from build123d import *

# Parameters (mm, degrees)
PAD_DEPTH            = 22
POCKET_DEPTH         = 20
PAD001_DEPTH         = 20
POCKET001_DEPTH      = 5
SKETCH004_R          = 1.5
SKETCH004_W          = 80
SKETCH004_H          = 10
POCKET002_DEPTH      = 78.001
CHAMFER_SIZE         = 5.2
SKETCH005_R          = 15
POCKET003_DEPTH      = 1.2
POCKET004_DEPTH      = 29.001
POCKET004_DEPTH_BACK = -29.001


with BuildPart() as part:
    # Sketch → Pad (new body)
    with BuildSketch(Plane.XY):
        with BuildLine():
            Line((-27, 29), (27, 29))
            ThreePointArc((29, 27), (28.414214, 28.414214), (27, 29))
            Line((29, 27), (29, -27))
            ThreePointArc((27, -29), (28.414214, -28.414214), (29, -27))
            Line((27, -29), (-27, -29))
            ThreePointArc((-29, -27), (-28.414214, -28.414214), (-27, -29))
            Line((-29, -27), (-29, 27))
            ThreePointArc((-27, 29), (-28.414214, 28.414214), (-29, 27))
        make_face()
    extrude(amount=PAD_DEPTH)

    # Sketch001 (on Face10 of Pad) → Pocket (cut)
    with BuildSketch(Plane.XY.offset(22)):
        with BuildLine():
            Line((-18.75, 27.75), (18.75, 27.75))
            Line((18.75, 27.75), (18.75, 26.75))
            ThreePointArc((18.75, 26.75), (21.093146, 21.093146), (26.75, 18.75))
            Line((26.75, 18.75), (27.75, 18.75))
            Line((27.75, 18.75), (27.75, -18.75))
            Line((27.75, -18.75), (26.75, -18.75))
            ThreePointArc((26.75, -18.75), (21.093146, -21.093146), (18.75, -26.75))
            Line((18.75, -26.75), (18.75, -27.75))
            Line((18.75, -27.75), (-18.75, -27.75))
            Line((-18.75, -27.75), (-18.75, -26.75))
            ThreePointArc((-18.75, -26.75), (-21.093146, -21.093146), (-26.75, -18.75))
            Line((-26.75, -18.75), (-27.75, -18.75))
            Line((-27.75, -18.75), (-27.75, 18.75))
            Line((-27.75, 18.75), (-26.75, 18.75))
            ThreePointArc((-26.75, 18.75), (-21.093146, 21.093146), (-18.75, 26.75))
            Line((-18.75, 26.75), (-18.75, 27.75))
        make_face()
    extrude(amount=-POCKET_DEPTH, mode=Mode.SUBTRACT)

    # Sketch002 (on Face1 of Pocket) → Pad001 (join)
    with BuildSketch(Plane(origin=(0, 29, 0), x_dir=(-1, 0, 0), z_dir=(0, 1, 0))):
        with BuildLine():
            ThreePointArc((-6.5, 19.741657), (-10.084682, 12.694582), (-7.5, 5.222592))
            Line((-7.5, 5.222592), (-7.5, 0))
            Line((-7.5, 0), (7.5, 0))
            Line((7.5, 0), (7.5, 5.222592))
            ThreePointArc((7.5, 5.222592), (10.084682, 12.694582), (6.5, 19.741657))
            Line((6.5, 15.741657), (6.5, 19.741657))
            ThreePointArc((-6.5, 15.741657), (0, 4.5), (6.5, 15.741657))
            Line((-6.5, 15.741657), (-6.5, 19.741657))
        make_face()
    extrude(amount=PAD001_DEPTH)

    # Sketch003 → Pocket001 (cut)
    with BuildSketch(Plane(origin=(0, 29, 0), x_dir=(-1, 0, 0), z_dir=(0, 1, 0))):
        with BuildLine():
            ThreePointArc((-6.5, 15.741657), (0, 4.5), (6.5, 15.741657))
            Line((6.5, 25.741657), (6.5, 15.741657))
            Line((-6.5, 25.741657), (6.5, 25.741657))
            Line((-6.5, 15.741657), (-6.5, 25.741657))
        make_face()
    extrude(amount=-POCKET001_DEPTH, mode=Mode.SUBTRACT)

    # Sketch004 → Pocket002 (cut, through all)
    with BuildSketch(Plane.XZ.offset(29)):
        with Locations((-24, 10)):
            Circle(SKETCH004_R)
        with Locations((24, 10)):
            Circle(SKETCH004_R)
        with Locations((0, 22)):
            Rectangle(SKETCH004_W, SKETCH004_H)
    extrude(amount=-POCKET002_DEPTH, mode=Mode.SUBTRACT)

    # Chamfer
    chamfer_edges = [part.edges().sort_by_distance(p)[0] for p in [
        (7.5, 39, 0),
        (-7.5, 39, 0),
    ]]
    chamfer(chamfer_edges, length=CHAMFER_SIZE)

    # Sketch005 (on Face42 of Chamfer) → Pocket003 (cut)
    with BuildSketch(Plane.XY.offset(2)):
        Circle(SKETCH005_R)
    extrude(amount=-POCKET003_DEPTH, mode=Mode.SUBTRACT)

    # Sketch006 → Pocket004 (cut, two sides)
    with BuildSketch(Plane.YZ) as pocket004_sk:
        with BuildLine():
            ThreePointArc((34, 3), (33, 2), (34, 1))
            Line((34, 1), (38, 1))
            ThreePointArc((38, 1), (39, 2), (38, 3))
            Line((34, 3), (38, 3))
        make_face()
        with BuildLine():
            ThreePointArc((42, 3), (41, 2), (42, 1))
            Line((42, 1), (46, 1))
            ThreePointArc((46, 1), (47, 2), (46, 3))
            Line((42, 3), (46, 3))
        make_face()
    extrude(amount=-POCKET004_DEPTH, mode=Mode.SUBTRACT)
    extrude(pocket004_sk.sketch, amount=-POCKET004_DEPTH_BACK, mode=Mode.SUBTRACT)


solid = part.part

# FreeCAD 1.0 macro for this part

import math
import FreeCAD as App
import Part
import Sketcher
from FreeCAD import Vector


def edges_at(feature, points):
    """Names of the edges that pass closest to the given points."""
    edges = feature.Shape.Edges
    near = lambda p: min(range(len(edges)), key=lambda i: edges[i].distToShape(Part.Vertex(*p))[0])
    return sorted({f"Edge{near(p) + 1}" for p in points})


def add_polygon(sketch, points):
    """Adds a closed chain of lines whose ends are joined by coincident constraints."""
    first, n = sketch.GeometryCount, len(points)
    for a, b in zip(points, points[1:] + points[:1]):
        sketch.addGeometry(Part.LineSegment(App.Vector(*a, 0), App.Vector(*b, 0)), False)
    for i in range(n):
        sketch.addConstraint(Sketcher.Constraint("Coincident", first + i, 2, first + (i + 1) % n, 1))

doc = App.newDocument("Part")
body = doc.addObject("PartDesign::Body", "Body")

# Sketch on XY plane
sketch1 = doc.addObject("Sketcher::SketchObject", "Sketch")
body.addObject(sketch1)
sketch1.AttachmentSupport = (doc.XY_Plane, [""])
sketch1.MapMode = "FlatFace"
sketch1.addGeometry(Part.LineSegment(Vector(27, 29, 0), Vector(-27, 29, 0)), False)
sketch1.addGeometry(Part.ArcOfCircle(Part.Circle(Vector(-27, 27, 0), Vector(0, 0, 1), 2), math.radians(90), math.radians(180)), False)
sketch1.addGeometry(Part.LineSegment(Vector(-29, 27, 0), Vector(-29, -27, 0)), False)
sketch1.addGeometry(Part.ArcOfCircle(Part.Circle(Vector(-27, -27, 0), Vector(0, 0, 1), 2), math.radians(180), math.radians(270)), False)
sketch1.addGeometry(Part.LineSegment(Vector(-27, -29, 0), Vector(27, -29, 0)), False)
sketch1.addGeometry(Part.ArcOfCircle(Part.Circle(Vector(27, -27, 0), Vector(0, 0, 1), 2), math.radians(-90), math.radians(0)), False)
sketch1.addGeometry(Part.LineSegment(Vector(29, -27, 0), Vector(29, 27, 0)), False)
sketch1.addGeometry(Part.ArcOfCircle(Part.Circle(Vector(27, 27, 0), Vector(0, 0, 1), 2), math.radians(0), math.radians(90)), False)
sketch1.addConstraint(Sketcher.Constraint("Tangent", 0, 2, 1, 1))
sketch1.addConstraint(Sketcher.Constraint("Tangent", 1, 2, 2, 1))
sketch1.addConstraint(Sketcher.Constraint("Tangent", 2, 2, 3, 1))
sketch1.addConstraint(Sketcher.Constraint("Tangent", 3, 2, 4, 1))
sketch1.addConstraint(Sketcher.Constraint("Tangent", 4, 2, 5, 1))
sketch1.addConstraint(Sketcher.Constraint("Tangent", 5, 2, 6, 1))
sketch1.addConstraint(Sketcher.Constraint("Tangent", 6, 2, 7, 1))
sketch1.addConstraint(Sketcher.Constraint("Tangent", 7, 2, 0, 1))
sketch1.addConstraint(Sketcher.Constraint("Horizontal", 0))
sketch1.addConstraint(Sketcher.Constraint("Vertical", 2))
sketch1.addConstraint(Sketcher.Constraint("Horizontal", 4))
sketch1.addConstraint(Sketcher.Constraint("Vertical", 6))
sketch1.addConstraint(Sketcher.Constraint("Equal", 1, 3))
sketch1.addConstraint(Sketcher.Constraint("Equal", 3, 5))
sketch1.addConstraint(Sketcher.Constraint("Equal", 5, 7))
sketch1.addConstraint(Sketcher.Constraint("Symmetric", 1, 3, 5, 3, -1, 1))
sketch1.addConstraint(Sketcher.Constraint("Equal", 4, 2))
sketch1.addConstraint(Sketcher.Constraint("Radius", 1, 1.999999))
sketch1.addConstraint(Sketcher.Constraint("DistanceX", 0, 2, 0, 1, 54.0))
pad1 = doc.addObject("PartDesign::Pad", "Pad")
body.addObject(pad1)
pad1.Profile = sketch1
pad1.Length = 22

# Sketch on XY plane
sketch2 = doc.addObject("Sketcher::SketchObject", "Sketch001")
body.addObject(sketch2)
sketch2.AttachmentSupport = (doc.XY_Plane, [""])
sketch2.MapMode = "FlatFace"
sketch2.AttachmentOffset = App.Placement(Vector(0, 0, 22), App.Rotation())
sketch2.addGeometry(Part.LineSegment(Vector(18.8, 27.8, 0), Vector(-18.8, 27.8, 0)), False)
sketch2.addGeometry(Part.LineSegment(Vector(-18.8, 27.8, 0), Vector(-18.8, 26.8, 0)), False)
sketch2.addGeometry(Part.ArcOfCircle(Part.Circle(Vector(-26.8, 26.8, 0), Vector(0, 0, 1), 8), math.radians(-90), math.radians(0)), False)
sketch2.addGeometry(Part.LineSegment(Vector(-26.8, 18.8, 0), Vector(-27.8, 18.8, 0)), False)
sketch2.addGeometry(Part.LineSegment(Vector(-27.8, 18.8, 0), Vector(-27.8, -18.8, 0)), False)
sketch2.addGeometry(Part.LineSegment(Vector(-27.8, -18.8, 0), Vector(-26.8, -18.8, 0)), False)
sketch2.addGeometry(Part.ArcOfCircle(Part.Circle(Vector(-26.8, -26.8, 0), Vector(0, 0, 1), 8), math.radians(0), math.radians(90)), False)
sketch2.addGeometry(Part.LineSegment(Vector(-18.8, -26.8, 0), Vector(-18.8, -27.8, 0)), False)
sketch2.addGeometry(Part.LineSegment(Vector(-18.8, -27.8, 0), Vector(18.8, -27.8, 0)), False)
sketch2.addGeometry(Part.LineSegment(Vector(18.8, -27.8, 0), Vector(18.8, -26.8, 0)), False)
sketch2.addGeometry(Part.ArcOfCircle(Part.Circle(Vector(26.8, -26.8, 0), Vector(0, 0, 1), 8), math.radians(90), math.radians(180)), False)
sketch2.addGeometry(Part.LineSegment(Vector(26.8, -18.8, 0), Vector(27.8, -18.8, 0)), False)
sketch2.addGeometry(Part.LineSegment(Vector(27.8, -18.8, 0), Vector(27.8, 18.8, 0)), False)
sketch2.addGeometry(Part.LineSegment(Vector(27.8, 18.8, 0), Vector(26.8, 18.8, 0)), False)
sketch2.addGeometry(Part.ArcOfCircle(Part.Circle(Vector(26.8, 26.8, 0), Vector(0, 0, 1), 8), math.radians(-180), math.radians(-90)), False)
sketch2.addGeometry(Part.LineSegment(Vector(18.8, 26.8, 0), Vector(18.8, 27.8, 0)), False)
sketch2.addConstraint(Sketcher.Constraint("Coincident", 0, 2, 1, 1))
sketch2.addConstraint(Sketcher.Constraint("Tangent", 1, 2, 2, 2))
sketch2.addConstraint(Sketcher.Constraint("Tangent", 2, 1, 3, 1))
sketch2.addConstraint(Sketcher.Constraint("Coincident", 3, 2, 4, 1))
sketch2.addConstraint(Sketcher.Constraint("Coincident", 4, 2, 5, 1))
sketch2.addConstraint(Sketcher.Constraint("Tangent", 5, 2, 6, 2))
sketch2.addConstraint(Sketcher.Constraint("Tangent", 6, 1, 7, 1))
sketch2.addConstraint(Sketcher.Constraint("Coincident", 7, 2, 8, 1))
sketch2.addConstraint(Sketcher.Constraint("Coincident", 8, 2, 9, 1))
sketch2.addConstraint(Sketcher.Constraint("Tangent", 9, 2, 10, 2))
sketch2.addConstraint(Sketcher.Constraint("Tangent", 10, 1, 11, 1))
sketch2.addConstraint(Sketcher.Constraint("Coincident", 11, 2, 12, 1))
sketch2.addConstraint(Sketcher.Constraint("Coincident", 12, 2, 13, 1))
sketch2.addConstraint(Sketcher.Constraint("Tangent", 13, 2, 14, 2))
sketch2.addConstraint(Sketcher.Constraint("Tangent", 14, 1, 15, 1))
sketch2.addConstraint(Sketcher.Constraint("Coincident", 15, 2, 0, 1))
sketch2.addConstraint(Sketcher.Constraint("Horizontal", 0))
sketch2.addConstraint(Sketcher.Constraint("Vertical", 1))
sketch2.addConstraint(Sketcher.Constraint("Horizontal", 3))
sketch2.addConstraint(Sketcher.Constraint("Vertical", 4))
sketch2.addConstraint(Sketcher.Constraint("Horizontal", 5))
sketch2.addConstraint(Sketcher.Constraint("Vertical", 7))
sketch2.addConstraint(Sketcher.Constraint("Horizontal", 8))
sketch2.addConstraint(Sketcher.Constraint("Vertical", 9))
sketch2.addConstraint(Sketcher.Constraint("Horizontal", 11))
sketch2.addConstraint(Sketcher.Constraint("Vertical", 12))
sketch2.addConstraint(Sketcher.Constraint("Horizontal", 13))
sketch2.addConstraint(Sketcher.Constraint("Vertical", 15))
sketch2.addConstraint(Sketcher.Constraint("Equal", 2, 6))
sketch2.addConstraint(Sketcher.Constraint("Equal", 6, 10))
sketch2.addConstraint(Sketcher.Constraint("Equal", 10, 14))
sketch2.addConstraint(Sketcher.Constraint("Symmetric", 2, 3, 10, 3, -1, 1))
sketch2.addConstraint(Sketcher.Constraint("Symmetric", 6, 3, 14, 3, -1, 1))
sketch2.addConstraint(Sketcher.Constraint("Symmetric", 6, 3, 10, 3, -2))
sketch2.addConstraint(Sketcher.Constraint("Equal", 5, 11))
sketch2.addConstraint(Sketcher.Constraint("Equal", 13, 1))
sketch2.addConstraint(Sketcher.Constraint("Equal", 8, 4))
sketch2.addConstraint(Sketcher.Constraint("Equal", 1, 7))
sketch2.addConstraint(Sketcher.Constraint("Radius", 2, 8.000001))
sketch2.addConstraint(Sketcher.Constraint("DistanceX", 3, 2, 3, 1, 1.0))
sketch2.addConstraint(Sketcher.Constraint("DistanceX", 0, 2, 0, 1, 37.5))
pocket1 = doc.addObject("PartDesign::Pocket", "Pocket")
body.addObject(pocket1)
pocket1.Profile = sketch2
pocket1.Length = 20

# Sketch on XZ plane
sketch3 = doc.addObject("Sketcher::SketchObject", "Sketch002")
body.addObject(sketch3)
sketch3.AttachmentSupport = (doc.XZ_Plane, [""])
sketch3.MapMode = "FlatFace"
sketch3.AttachmentOffset = App.Placement(Vector(0, 0, -29), App.Rotation())
sketch3.addGeometry(Part.ArcOfCircle(Part.Circle(Vector(0, 12, 0), Vector(0, 0, 1), 10.1), math.radians(-42), math.radians(50)), False)
sketch3.addGeometry(Part.LineSegment(Vector(7.5, 5.2, 0), Vector(7.5, 0, 0)), False)
sketch3.addGeometry(Part.LineSegment(Vector(7.5, 0, 0), Vector(-7.5, 0, 0)), False)
sketch3.addGeometry(Part.LineSegment(Vector(-7.5, 0, 0), Vector(-7.5, 5.2, 0)), False)
sketch3.addGeometry(Part.ArcOfCircle(Part.Circle(Vector(0, 12, 0), Vector(0, 0, 1), 10.1), math.radians(130), math.radians(222)), False)
sketch3.addGeometry(Part.LineSegment(Vector(-6.5, 19.7, 0), Vector(-6.5, 15.7, 0)), False)
sketch3.addGeometry(Part.ArcOfCircle(Part.Circle(Vector(0, 12, 0), Vector(0, 0, 1), 7.5), math.radians(150), math.radians(390)), False)
sketch3.addGeometry(Part.LineSegment(Vector(6.5, 15.7, 0), Vector(6.5, 19.7, 0)), False)
sketch3.addConstraint(Sketcher.Constraint("Coincident", 0, 1, 1, 1))
sketch3.addConstraint(Sketcher.Constraint("Coincident", 1, 2, 2, 1))
sketch3.addConstraint(Sketcher.Constraint("Coincident", 2, 2, 3, 1))
sketch3.addConstraint(Sketcher.Constraint("Coincident", 3, 2, 4, 2))
sketch3.addConstraint(Sketcher.Constraint("Coincident", 4, 1, 5, 1))
sketch3.addConstraint(Sketcher.Constraint("Coincident", 5, 2, 6, 1))
sketch3.addConstraint(Sketcher.Constraint("Coincident", 6, 2, 7, 1))
sketch3.addConstraint(Sketcher.Constraint("Coincident", 7, 2, 0, 2))
sketch3.addConstraint(Sketcher.Constraint("Vertical", 1))
sketch3.addConstraint(Sketcher.Constraint("Horizontal", 2))
sketch3.addConstraint(Sketcher.Constraint("Vertical", 3))
sketch3.addConstraint(Sketcher.Constraint("Vertical", 5))
sketch3.addConstraint(Sketcher.Constraint("Vertical", 7))
sketch3.addConstraint(Sketcher.Constraint("Coincident", 4, 3, 0, 3))
sketch3.addConstraint(Sketcher.Constraint("Coincident", 6, 3, 0, 3))
sketch3.addConstraint(Sketcher.Constraint("Equal", 0, 4))
sketch3.addConstraint(Sketcher.Constraint("Symmetric", 1, 2, 2, 2, -1, 1))
sketch3.addConstraint(Sketcher.Constraint("Symmetric", 5, 2, 6, 2, -2))
sketch3.addConstraint(Sketcher.Constraint("Radius", 6, 7.5))
sketch3.addConstraint(Sketcher.Constraint("DistanceX", 2, 2, 2, 1, 15.0))
sketch3.addConstraint(Sketcher.Constraint("DistanceY", 5, 2, 5, 1, 4.0))
sketch3.addConstraint(Sketcher.Constraint("DistanceY", -1, 1, 0, 3, 12.0))
sketch3.addConstraint(Sketcher.Constraint("DistanceX", 3, 2, 4, 1, 1.0))
pad2 = doc.addObject("PartDesign::Pad", "Pad001")
body.addObject(pad2)
pad2.Profile = sketch3
pad2.Length = 20
pad2.Reversed = True

# Sketch on XZ plane
sketch4 = doc.addObject("Sketcher::SketchObject", "Sketch003")
body.addObject(sketch4)
sketch4.AttachmentSupport = (doc.XZ_Plane, [""])
sketch4.MapMode = "FlatFace"
sketch4.AttachmentOffset = App.Placement(Vector(0, 0, -29), App.Rotation())
sketch4.addGeometry(Part.ArcOfCircle(Part.Circle(Vector(0, 12, 0), Vector(0, 0, 1), 7), math.radians(150), math.radians(390)), False)
sketch4.addGeometry(Part.LineSegment(Vector(-6, 16, 0), Vector(-6, 26, 0)), False)
sketch4.addGeometry(Part.LineSegment(Vector(-6, 26, 0), Vector(6, 26, 0)), False)
sketch4.addGeometry(Part.LineSegment(Vector(6, 26, 0), Vector(6, 16, 0)), False)
sketch4.addConstraint(Sketcher.Constraint("Coincident", 0, 1, 1, 1))
sketch4.addConstraint(Sketcher.Constraint("Coincident", 1, 2, 2, 1))
sketch4.addConstraint(Sketcher.Constraint("Coincident", 2, 2, 3, 1))
sketch4.addConstraint(Sketcher.Constraint("Coincident", 3, 2, 0, 2))
sketch4.addConstraint(Sketcher.Constraint("Vertical", 1))
sketch4.addConstraint(Sketcher.Constraint("Horizontal", 2))
sketch4.addConstraint(Sketcher.Constraint("Vertical", 3))
sketch4.addConstraint(Sketcher.Constraint("Symmetric", 0, 1, 3, 2, -2))
sketch4.addConstraint(Sketcher.Constraint("Radius", 0, 7.5))
sketch4.addConstraint(Sketcher.Constraint("DistanceX", 2, 1, 2, 2, 13.0))
sketch4.addConstraint(Sketcher.Constraint("DistanceY", 1, 1, 1, 2, 10.0))
sketch4.addConstraint(Sketcher.Constraint("DistanceY", -1, 1, 0, 3, 12.0))
pocket2 = doc.addObject("PartDesign::Pocket", "Pocket001")
body.addObject(pocket2)
pocket2.Profile = sketch4
pocket2.Length = 5
pocket2.Reversed = True

# Sketch on XZ plane
sketch5 = doc.addObject("Sketcher::SketchObject", "Sketch004")
body.addObject(sketch5)
sketch5.AttachmentSupport = (doc.XZ_Plane, [""])
sketch5.MapMode = "FlatFace"
sketch5.AttachmentOffset = App.Placement(Vector(0, 0, 29), App.Rotation())
sketch5.addGeometry(Part.Circle(Vector(-24, 10, 0), Vector(0, 0, 1), 1.5), False)  # 0
sketch5.addGeometry(Part.Circle(Vector(24, 10, 0), Vector(0, 0, 1), 1.5), False)  # 1
add_polygon(sketch5, [(-40, 27), (-40, 17), (40, 17), (40, 27)])  # lines 2-5
sketch5.addConstraint(Sketcher.Constraint("Vertical", 2))
sketch5.addConstraint(Sketcher.Constraint("Horizontal", 3))
sketch5.addConstraint(Sketcher.Constraint("Vertical", 4))
sketch5.addConstraint(Sketcher.Constraint("Horizontal", 5))
sketch5.addConstraint(Sketcher.Constraint("Equal", 0, 1))
sketch5.addConstraint(Sketcher.Constraint("Symmetric", 0, 3, 1, 3, -2))
sketch5.addConstraint(Sketcher.Constraint("Diameter", 0, 3.0))
sketch5.addConstraint(Sketcher.Constraint("DistanceX", 3, 1, 3, 2, 80.0))
sketch5.addConstraint(Sketcher.Constraint("DistanceY", 2, 2, 2, 1, 10.0))
sketch5.addConstraint(Sketcher.Constraint("DistanceX", 0, 3, -1, 1, 24.0))
sketch5.addConstraint(Sketcher.Constraint("DistanceY", -1, 1, 0, 3, 10.0))
sketch5.addConstraint(Sketcher.Constraint("DistanceX", 2, 2, -1, 1, 40.0))
sketch5.addConstraint(Sketcher.Constraint("DistanceY", -1, 1, 2, 2, 17.0))
pocket3 = doc.addObject("PartDesign::Pocket", "Pocket002")
body.addObject(pocket3)
pocket3.Profile = sketch5
pocket3.Type = "ThroughAll"
doc.recompute()

chamfer = doc.addObject("PartDesign::Chamfer", "Chamfer")
body.addObject(chamfer)
chamfer.Base = (pocket3, edges_at(pocket3, [(7.5, 39, 0), (-7.5, 39, 0)]))
chamfer.Size = 5.2

# Sketch on XY plane
sketch6 = doc.addObject("Sketcher::SketchObject", "Sketch005")
body.addObject(sketch6)
sketch6.AttachmentSupport = (doc.XY_Plane, [""])
sketch6.MapMode = "FlatFace"
sketch6.AttachmentOffset = App.Placement(Vector(0, 0, 2), App.Rotation())
sketch6.addGeometry(Part.Circle(Vector(0, 0, 0), Vector(0, 0, 1), 15), False)
sketch6.addConstraint(Sketcher.Constraint("Coincident", 0, 3, -1, 1))
sketch6.addConstraint(Sketcher.Constraint("Diameter", 0, 30.0))
pocket4 = doc.addObject("PartDesign::Pocket", "Pocket003")
body.addObject(pocket4)
pocket4.Profile = sketch6
pocket4.Length = 1.2

# Sketch on YZ plane
sketch7 = doc.addObject("Sketcher::SketchObject", "Sketch006")
body.addObject(sketch7)
sketch7.AttachmentSupport = (doc.YZ_Plane, [""])
sketch7.MapMode = "FlatFace"
sketch7.addGeometry(Part.ArcOfCircle(Part.Circle(Vector(34, 2, 0), Vector(0, 0, 1), 1), math.radians(90), math.radians(270)), False)
sketch7.addGeometry(Part.LineSegment(Vector(34, 1, 0), Vector(38, 1, 0)), False)
sketch7.addGeometry(Part.ArcOfCircle(Part.Circle(Vector(38, 2, 0), Vector(0, 0, 1), 1), math.radians(-90), math.radians(90)), False)
sketch7.addGeometry(Part.LineSegment(Vector(38, 3, 0), Vector(34, 3, 0)), False)
sketch7.addGeometry(Part.ArcOfCircle(Part.Circle(Vector(42, 2, 0), Vector(0, 0, 1), 1), math.radians(90), math.radians(270)), False)
sketch7.addGeometry(Part.LineSegment(Vector(42, 1, 0), Vector(46, 1, 0)), False)
sketch7.addGeometry(Part.ArcOfCircle(Part.Circle(Vector(46, 2, 0), Vector(0, 0, 1), 1), math.radians(-90), math.radians(90)), False)
sketch7.addGeometry(Part.LineSegment(Vector(46, 3, 0), Vector(42, 3, 0)), False)
sketch7.addConstraint(Sketcher.Constraint("Tangent", 0, 2, 1, 1))
sketch7.addConstraint(Sketcher.Constraint("Tangent", 1, 2, 2, 1))
sketch7.addConstraint(Sketcher.Constraint("Tangent", 2, 2, 3, 1))
sketch7.addConstraint(Sketcher.Constraint("Tangent", 3, 2, 0, 1))
sketch7.addConstraint(Sketcher.Constraint("Tangent", 4, 2, 5, 1))
sketch7.addConstraint(Sketcher.Constraint("Tangent", 5, 2, 6, 1))
sketch7.addConstraint(Sketcher.Constraint("Tangent", 6, 2, 7, 1))
sketch7.addConstraint(Sketcher.Constraint("Tangent", 7, 2, 4, 1))
sketch7.addConstraint(Sketcher.Constraint("Horizontal", 1))
sketch7.addConstraint(Sketcher.Constraint("Horizontal", 3))
sketch7.addConstraint(Sketcher.Constraint("Horizontal", 5))
sketch7.addConstraint(Sketcher.Constraint("Horizontal", 7))
sketch7.addConstraint(Sketcher.Constraint("Equal", 2, 4))
sketch7.addConstraint(Sketcher.Constraint("Horizontal", 2, 3, 4, 3))
sketch7.addConstraint(Sketcher.Constraint("Equal", 3, 5))
sketch7.addConstraint(Sketcher.Constraint("Radius", 0, 1.0))
sketch7.addConstraint(Sketcher.Constraint("DistanceX", 1, 1, 1, 2, 4.0))
sketch7.addConstraint(Sketcher.Constraint("DistanceX", -1, 1, 0, 3, 34.0))
sketch7.addConstraint(Sketcher.Constraint("DistanceY", -1, 1, 0, 3, 2.0))
sketch7.addConstraint(Sketcher.Constraint("DistanceX", -1, 1, 4, 3, 42.0))
pocket5 = doc.addObject("PartDesign::Pocket", "Pocket004")
body.addObject(pocket5)
pocket5.Profile = sketch7
pocket5.Type = "ThroughAll"
pocket5.Midplane = True

doc.recompute()
